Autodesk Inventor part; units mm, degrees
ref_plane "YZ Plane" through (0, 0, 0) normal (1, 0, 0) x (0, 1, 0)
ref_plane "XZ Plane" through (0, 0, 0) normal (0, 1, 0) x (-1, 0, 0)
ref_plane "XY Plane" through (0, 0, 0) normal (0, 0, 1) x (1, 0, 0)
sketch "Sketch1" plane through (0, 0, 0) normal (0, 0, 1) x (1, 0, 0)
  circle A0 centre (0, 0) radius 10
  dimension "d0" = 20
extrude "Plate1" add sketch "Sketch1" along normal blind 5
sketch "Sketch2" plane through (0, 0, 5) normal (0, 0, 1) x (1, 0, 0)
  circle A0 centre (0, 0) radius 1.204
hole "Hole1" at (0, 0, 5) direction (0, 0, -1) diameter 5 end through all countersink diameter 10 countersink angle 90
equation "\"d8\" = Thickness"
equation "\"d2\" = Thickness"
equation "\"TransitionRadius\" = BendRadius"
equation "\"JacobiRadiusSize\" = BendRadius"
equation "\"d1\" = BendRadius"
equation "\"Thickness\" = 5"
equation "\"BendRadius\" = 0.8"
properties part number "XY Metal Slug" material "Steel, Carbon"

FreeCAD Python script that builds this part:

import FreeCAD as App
import Part
import Sketcher

doc = App.newDocument("Part")
params = doc.addObject("Spreadsheet::Sheet", "Params")
for row, (alias, value) in enumerate([
    ("sketch1_diameter", "20 mm"),
    ("pad1_length", "5 mm"),
    ("sketch2_diameter", "5 mm"),
    ("hole_diameter", "5 mm"),
    ("hole_csink_diameter", "10 mm"),
], start=1):
    params.set(f"A{row}", alias)
    params.set(f"B{row}", "=" + value)
    params.setAlias(f"B{row}", alias)

body = doc.addObject("PartDesign::Body", "Body")

# Sketch on XY plane
sketch1 = body.newObject("Sketcher::SketchObject", "Sketch")
sketch1.AttachmentSupport = (doc.getObject("XY_Plane"), [""])
sketch1.MapMode = "FlatFace"
sketch1.addGeometry(Part.Circle(App.Vector(0, 0, 0), App.Vector(0, 0, 1), 10), False)
sketch1.addConstraint([
    Sketcher.Constraint("Coincident", 0, 3, -1, 1),
    Sketcher.Constraint("Diameter", 0, 20.0),
])
sketch1.setExpression("Constraints[1]", "Params.sketch1_diameter")
pad1 = body.newObject("PartDesign::Pad", "Pad")
pad1.Profile = sketch1
pad1.setExpression("Length", "Params.pad1_length")

# Sketch on XY plane
sketch2 = body.newObject("Sketcher::SketchObject", "Sketch001")
sketch2.AttachmentSupport = (doc.getObject("XY_Plane"), [""])
sketch2.MapMode = "FlatFace"
sketch2.AttachmentOffset = App.Placement(App.Vector(0, 0, 5), App.Rotation())
sketch2.addGeometry(Part.Circle(App.Vector(0, 0, 0), App.Vector(0, 0, 1), 2.5), False)
sketch2.addConstraint([
    Sketcher.Constraint("Coincident", 0, 3, -1, 1),
    Sketcher.Constraint("Diameter", 0, 5.0),
])
sketch2.setExpression("Constraints[1]", "Params.sketch2_diameter")
doc.recompute()
hole = body.newObject("PartDesign::Hole", "Hole")
hole.Profile = sketch2
hole.ThreadType = "None"
hole.setExpression("Diameter", "Params.hole_diameter")
hole.DepthType = "ThroughAll"
hole.HoleCutType = "Countersink"
hole.setExpression("HoleCutDiameter", "Params.hole_csink_diameter")
hole.HoleCutCountersinkAngle = 90

doc.recompute()
